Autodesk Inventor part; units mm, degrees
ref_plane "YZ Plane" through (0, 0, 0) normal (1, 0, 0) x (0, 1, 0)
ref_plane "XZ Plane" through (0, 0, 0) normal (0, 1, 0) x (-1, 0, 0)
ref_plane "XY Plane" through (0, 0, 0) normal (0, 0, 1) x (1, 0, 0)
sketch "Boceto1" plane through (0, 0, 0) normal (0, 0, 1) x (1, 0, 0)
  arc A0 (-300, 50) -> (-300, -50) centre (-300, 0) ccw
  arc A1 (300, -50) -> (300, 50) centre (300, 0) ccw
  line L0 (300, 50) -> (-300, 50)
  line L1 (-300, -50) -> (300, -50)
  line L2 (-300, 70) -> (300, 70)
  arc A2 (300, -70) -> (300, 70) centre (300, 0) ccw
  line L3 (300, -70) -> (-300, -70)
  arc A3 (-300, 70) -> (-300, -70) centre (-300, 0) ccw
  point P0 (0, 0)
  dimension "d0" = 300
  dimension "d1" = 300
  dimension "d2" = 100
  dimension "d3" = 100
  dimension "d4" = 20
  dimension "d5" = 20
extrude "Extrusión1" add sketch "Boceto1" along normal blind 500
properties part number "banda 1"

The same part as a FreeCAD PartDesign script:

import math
import FreeCAD as App
import Part
import Sketcher
Q = App.Units.Quantity

doc = App.newDocument("Part")
body = doc.addObject("PartDesign::Body", "Body")

# Sketch on XY plane
sketch1 = body.newObject("Sketcher::SketchObject", "Sketch")
sketch1.AttachmentSupport = (doc.getObject("XY_Plane"), [""])
sketch1.MapMode = "FlatFace"
sketch1.addGeometry([
    Part.LineSegment(App.Vector(300, 70, 0), App.Vector(-300, 70, 0)),  # 0
    Part.ArcOfCircle(Part.Circle(App.Vector(-300, 0, 0), App.Vector(0, 0, 1), 70), math.radians(90), math.radians(270)),  # 1
    Part.LineSegment(App.Vector(-300, -70, 0), App.Vector(300, -70, 0)),  # 2
    Part.ArcOfCircle(Part.Circle(App.Vector(300, 0, 0), App.Vector(0, 0, 1), 70), math.radians(-90), math.radians(90)),  # 3
    Part.ArcOfCircle(Part.Circle(App.Vector(-300, 0, 0), App.Vector(0, 0, 1), 50), math.radians(90), math.radians(270)),  # 4
    Part.LineSegment(App.Vector(-300, 50, 0), App.Vector(300, 50, 0)),  # 5
    Part.ArcOfCircle(Part.Circle(App.Vector(300, 0, 0), App.Vector(0, 0, 1), 50), math.radians(-90), math.radians(90)),  # 6
    Part.LineSegment(App.Vector(300, -50, 0), App.Vector(-300, -50, 0)),  # 7
], False)
sketch1.addConstraint([
    Sketcher.Constraint("Tangent", 0, 2, 1, 1),
    Sketcher.Constraint("Tangent", 1, 2, 2, 1),
    Sketcher.Constraint("Tangent", 2, 2, 3, 1),
    Sketcher.Constraint("Tangent", 3, 2, 0, 1),
    Sketcher.Constraint("Tangent", 4, 1, 5, 1),
    Sketcher.Constraint("Tangent", 5, 2, 6, 2),
    Sketcher.Constraint("Tangent", 6, 1, 7, 1),
    Sketcher.Constraint("Tangent", 7, 2, 4, 2),
    Sketcher.Constraint("Horizontal", 0),
    Sketcher.Constraint("Horizontal", 2),
    Sketcher.Constraint("Horizontal", 5),
    Sketcher.Constraint("Horizontal", 7),
    Sketcher.Constraint("Coincident", 4, 3, 1, 3),
    Sketcher.Constraint("Symmetric", 1, 3, 3, 3, -1, 1),
    Sketcher.Constraint("Vertical", 6, 3, 2, 2),
    Sketcher.Constraint("Radius", 4, Q("50 mm")),
    Sketcher.Constraint("DistanceX", 1, 3, -1, 1, Q("300 mm")),
    Sketcher.Constraint("Radius", 1, Q("70 mm")),
])
pad1 = body.newObject("PartDesign::Pad", "Pad")
pad1.Profile = sketch1
pad1.Length = 500

doc.recompute()
